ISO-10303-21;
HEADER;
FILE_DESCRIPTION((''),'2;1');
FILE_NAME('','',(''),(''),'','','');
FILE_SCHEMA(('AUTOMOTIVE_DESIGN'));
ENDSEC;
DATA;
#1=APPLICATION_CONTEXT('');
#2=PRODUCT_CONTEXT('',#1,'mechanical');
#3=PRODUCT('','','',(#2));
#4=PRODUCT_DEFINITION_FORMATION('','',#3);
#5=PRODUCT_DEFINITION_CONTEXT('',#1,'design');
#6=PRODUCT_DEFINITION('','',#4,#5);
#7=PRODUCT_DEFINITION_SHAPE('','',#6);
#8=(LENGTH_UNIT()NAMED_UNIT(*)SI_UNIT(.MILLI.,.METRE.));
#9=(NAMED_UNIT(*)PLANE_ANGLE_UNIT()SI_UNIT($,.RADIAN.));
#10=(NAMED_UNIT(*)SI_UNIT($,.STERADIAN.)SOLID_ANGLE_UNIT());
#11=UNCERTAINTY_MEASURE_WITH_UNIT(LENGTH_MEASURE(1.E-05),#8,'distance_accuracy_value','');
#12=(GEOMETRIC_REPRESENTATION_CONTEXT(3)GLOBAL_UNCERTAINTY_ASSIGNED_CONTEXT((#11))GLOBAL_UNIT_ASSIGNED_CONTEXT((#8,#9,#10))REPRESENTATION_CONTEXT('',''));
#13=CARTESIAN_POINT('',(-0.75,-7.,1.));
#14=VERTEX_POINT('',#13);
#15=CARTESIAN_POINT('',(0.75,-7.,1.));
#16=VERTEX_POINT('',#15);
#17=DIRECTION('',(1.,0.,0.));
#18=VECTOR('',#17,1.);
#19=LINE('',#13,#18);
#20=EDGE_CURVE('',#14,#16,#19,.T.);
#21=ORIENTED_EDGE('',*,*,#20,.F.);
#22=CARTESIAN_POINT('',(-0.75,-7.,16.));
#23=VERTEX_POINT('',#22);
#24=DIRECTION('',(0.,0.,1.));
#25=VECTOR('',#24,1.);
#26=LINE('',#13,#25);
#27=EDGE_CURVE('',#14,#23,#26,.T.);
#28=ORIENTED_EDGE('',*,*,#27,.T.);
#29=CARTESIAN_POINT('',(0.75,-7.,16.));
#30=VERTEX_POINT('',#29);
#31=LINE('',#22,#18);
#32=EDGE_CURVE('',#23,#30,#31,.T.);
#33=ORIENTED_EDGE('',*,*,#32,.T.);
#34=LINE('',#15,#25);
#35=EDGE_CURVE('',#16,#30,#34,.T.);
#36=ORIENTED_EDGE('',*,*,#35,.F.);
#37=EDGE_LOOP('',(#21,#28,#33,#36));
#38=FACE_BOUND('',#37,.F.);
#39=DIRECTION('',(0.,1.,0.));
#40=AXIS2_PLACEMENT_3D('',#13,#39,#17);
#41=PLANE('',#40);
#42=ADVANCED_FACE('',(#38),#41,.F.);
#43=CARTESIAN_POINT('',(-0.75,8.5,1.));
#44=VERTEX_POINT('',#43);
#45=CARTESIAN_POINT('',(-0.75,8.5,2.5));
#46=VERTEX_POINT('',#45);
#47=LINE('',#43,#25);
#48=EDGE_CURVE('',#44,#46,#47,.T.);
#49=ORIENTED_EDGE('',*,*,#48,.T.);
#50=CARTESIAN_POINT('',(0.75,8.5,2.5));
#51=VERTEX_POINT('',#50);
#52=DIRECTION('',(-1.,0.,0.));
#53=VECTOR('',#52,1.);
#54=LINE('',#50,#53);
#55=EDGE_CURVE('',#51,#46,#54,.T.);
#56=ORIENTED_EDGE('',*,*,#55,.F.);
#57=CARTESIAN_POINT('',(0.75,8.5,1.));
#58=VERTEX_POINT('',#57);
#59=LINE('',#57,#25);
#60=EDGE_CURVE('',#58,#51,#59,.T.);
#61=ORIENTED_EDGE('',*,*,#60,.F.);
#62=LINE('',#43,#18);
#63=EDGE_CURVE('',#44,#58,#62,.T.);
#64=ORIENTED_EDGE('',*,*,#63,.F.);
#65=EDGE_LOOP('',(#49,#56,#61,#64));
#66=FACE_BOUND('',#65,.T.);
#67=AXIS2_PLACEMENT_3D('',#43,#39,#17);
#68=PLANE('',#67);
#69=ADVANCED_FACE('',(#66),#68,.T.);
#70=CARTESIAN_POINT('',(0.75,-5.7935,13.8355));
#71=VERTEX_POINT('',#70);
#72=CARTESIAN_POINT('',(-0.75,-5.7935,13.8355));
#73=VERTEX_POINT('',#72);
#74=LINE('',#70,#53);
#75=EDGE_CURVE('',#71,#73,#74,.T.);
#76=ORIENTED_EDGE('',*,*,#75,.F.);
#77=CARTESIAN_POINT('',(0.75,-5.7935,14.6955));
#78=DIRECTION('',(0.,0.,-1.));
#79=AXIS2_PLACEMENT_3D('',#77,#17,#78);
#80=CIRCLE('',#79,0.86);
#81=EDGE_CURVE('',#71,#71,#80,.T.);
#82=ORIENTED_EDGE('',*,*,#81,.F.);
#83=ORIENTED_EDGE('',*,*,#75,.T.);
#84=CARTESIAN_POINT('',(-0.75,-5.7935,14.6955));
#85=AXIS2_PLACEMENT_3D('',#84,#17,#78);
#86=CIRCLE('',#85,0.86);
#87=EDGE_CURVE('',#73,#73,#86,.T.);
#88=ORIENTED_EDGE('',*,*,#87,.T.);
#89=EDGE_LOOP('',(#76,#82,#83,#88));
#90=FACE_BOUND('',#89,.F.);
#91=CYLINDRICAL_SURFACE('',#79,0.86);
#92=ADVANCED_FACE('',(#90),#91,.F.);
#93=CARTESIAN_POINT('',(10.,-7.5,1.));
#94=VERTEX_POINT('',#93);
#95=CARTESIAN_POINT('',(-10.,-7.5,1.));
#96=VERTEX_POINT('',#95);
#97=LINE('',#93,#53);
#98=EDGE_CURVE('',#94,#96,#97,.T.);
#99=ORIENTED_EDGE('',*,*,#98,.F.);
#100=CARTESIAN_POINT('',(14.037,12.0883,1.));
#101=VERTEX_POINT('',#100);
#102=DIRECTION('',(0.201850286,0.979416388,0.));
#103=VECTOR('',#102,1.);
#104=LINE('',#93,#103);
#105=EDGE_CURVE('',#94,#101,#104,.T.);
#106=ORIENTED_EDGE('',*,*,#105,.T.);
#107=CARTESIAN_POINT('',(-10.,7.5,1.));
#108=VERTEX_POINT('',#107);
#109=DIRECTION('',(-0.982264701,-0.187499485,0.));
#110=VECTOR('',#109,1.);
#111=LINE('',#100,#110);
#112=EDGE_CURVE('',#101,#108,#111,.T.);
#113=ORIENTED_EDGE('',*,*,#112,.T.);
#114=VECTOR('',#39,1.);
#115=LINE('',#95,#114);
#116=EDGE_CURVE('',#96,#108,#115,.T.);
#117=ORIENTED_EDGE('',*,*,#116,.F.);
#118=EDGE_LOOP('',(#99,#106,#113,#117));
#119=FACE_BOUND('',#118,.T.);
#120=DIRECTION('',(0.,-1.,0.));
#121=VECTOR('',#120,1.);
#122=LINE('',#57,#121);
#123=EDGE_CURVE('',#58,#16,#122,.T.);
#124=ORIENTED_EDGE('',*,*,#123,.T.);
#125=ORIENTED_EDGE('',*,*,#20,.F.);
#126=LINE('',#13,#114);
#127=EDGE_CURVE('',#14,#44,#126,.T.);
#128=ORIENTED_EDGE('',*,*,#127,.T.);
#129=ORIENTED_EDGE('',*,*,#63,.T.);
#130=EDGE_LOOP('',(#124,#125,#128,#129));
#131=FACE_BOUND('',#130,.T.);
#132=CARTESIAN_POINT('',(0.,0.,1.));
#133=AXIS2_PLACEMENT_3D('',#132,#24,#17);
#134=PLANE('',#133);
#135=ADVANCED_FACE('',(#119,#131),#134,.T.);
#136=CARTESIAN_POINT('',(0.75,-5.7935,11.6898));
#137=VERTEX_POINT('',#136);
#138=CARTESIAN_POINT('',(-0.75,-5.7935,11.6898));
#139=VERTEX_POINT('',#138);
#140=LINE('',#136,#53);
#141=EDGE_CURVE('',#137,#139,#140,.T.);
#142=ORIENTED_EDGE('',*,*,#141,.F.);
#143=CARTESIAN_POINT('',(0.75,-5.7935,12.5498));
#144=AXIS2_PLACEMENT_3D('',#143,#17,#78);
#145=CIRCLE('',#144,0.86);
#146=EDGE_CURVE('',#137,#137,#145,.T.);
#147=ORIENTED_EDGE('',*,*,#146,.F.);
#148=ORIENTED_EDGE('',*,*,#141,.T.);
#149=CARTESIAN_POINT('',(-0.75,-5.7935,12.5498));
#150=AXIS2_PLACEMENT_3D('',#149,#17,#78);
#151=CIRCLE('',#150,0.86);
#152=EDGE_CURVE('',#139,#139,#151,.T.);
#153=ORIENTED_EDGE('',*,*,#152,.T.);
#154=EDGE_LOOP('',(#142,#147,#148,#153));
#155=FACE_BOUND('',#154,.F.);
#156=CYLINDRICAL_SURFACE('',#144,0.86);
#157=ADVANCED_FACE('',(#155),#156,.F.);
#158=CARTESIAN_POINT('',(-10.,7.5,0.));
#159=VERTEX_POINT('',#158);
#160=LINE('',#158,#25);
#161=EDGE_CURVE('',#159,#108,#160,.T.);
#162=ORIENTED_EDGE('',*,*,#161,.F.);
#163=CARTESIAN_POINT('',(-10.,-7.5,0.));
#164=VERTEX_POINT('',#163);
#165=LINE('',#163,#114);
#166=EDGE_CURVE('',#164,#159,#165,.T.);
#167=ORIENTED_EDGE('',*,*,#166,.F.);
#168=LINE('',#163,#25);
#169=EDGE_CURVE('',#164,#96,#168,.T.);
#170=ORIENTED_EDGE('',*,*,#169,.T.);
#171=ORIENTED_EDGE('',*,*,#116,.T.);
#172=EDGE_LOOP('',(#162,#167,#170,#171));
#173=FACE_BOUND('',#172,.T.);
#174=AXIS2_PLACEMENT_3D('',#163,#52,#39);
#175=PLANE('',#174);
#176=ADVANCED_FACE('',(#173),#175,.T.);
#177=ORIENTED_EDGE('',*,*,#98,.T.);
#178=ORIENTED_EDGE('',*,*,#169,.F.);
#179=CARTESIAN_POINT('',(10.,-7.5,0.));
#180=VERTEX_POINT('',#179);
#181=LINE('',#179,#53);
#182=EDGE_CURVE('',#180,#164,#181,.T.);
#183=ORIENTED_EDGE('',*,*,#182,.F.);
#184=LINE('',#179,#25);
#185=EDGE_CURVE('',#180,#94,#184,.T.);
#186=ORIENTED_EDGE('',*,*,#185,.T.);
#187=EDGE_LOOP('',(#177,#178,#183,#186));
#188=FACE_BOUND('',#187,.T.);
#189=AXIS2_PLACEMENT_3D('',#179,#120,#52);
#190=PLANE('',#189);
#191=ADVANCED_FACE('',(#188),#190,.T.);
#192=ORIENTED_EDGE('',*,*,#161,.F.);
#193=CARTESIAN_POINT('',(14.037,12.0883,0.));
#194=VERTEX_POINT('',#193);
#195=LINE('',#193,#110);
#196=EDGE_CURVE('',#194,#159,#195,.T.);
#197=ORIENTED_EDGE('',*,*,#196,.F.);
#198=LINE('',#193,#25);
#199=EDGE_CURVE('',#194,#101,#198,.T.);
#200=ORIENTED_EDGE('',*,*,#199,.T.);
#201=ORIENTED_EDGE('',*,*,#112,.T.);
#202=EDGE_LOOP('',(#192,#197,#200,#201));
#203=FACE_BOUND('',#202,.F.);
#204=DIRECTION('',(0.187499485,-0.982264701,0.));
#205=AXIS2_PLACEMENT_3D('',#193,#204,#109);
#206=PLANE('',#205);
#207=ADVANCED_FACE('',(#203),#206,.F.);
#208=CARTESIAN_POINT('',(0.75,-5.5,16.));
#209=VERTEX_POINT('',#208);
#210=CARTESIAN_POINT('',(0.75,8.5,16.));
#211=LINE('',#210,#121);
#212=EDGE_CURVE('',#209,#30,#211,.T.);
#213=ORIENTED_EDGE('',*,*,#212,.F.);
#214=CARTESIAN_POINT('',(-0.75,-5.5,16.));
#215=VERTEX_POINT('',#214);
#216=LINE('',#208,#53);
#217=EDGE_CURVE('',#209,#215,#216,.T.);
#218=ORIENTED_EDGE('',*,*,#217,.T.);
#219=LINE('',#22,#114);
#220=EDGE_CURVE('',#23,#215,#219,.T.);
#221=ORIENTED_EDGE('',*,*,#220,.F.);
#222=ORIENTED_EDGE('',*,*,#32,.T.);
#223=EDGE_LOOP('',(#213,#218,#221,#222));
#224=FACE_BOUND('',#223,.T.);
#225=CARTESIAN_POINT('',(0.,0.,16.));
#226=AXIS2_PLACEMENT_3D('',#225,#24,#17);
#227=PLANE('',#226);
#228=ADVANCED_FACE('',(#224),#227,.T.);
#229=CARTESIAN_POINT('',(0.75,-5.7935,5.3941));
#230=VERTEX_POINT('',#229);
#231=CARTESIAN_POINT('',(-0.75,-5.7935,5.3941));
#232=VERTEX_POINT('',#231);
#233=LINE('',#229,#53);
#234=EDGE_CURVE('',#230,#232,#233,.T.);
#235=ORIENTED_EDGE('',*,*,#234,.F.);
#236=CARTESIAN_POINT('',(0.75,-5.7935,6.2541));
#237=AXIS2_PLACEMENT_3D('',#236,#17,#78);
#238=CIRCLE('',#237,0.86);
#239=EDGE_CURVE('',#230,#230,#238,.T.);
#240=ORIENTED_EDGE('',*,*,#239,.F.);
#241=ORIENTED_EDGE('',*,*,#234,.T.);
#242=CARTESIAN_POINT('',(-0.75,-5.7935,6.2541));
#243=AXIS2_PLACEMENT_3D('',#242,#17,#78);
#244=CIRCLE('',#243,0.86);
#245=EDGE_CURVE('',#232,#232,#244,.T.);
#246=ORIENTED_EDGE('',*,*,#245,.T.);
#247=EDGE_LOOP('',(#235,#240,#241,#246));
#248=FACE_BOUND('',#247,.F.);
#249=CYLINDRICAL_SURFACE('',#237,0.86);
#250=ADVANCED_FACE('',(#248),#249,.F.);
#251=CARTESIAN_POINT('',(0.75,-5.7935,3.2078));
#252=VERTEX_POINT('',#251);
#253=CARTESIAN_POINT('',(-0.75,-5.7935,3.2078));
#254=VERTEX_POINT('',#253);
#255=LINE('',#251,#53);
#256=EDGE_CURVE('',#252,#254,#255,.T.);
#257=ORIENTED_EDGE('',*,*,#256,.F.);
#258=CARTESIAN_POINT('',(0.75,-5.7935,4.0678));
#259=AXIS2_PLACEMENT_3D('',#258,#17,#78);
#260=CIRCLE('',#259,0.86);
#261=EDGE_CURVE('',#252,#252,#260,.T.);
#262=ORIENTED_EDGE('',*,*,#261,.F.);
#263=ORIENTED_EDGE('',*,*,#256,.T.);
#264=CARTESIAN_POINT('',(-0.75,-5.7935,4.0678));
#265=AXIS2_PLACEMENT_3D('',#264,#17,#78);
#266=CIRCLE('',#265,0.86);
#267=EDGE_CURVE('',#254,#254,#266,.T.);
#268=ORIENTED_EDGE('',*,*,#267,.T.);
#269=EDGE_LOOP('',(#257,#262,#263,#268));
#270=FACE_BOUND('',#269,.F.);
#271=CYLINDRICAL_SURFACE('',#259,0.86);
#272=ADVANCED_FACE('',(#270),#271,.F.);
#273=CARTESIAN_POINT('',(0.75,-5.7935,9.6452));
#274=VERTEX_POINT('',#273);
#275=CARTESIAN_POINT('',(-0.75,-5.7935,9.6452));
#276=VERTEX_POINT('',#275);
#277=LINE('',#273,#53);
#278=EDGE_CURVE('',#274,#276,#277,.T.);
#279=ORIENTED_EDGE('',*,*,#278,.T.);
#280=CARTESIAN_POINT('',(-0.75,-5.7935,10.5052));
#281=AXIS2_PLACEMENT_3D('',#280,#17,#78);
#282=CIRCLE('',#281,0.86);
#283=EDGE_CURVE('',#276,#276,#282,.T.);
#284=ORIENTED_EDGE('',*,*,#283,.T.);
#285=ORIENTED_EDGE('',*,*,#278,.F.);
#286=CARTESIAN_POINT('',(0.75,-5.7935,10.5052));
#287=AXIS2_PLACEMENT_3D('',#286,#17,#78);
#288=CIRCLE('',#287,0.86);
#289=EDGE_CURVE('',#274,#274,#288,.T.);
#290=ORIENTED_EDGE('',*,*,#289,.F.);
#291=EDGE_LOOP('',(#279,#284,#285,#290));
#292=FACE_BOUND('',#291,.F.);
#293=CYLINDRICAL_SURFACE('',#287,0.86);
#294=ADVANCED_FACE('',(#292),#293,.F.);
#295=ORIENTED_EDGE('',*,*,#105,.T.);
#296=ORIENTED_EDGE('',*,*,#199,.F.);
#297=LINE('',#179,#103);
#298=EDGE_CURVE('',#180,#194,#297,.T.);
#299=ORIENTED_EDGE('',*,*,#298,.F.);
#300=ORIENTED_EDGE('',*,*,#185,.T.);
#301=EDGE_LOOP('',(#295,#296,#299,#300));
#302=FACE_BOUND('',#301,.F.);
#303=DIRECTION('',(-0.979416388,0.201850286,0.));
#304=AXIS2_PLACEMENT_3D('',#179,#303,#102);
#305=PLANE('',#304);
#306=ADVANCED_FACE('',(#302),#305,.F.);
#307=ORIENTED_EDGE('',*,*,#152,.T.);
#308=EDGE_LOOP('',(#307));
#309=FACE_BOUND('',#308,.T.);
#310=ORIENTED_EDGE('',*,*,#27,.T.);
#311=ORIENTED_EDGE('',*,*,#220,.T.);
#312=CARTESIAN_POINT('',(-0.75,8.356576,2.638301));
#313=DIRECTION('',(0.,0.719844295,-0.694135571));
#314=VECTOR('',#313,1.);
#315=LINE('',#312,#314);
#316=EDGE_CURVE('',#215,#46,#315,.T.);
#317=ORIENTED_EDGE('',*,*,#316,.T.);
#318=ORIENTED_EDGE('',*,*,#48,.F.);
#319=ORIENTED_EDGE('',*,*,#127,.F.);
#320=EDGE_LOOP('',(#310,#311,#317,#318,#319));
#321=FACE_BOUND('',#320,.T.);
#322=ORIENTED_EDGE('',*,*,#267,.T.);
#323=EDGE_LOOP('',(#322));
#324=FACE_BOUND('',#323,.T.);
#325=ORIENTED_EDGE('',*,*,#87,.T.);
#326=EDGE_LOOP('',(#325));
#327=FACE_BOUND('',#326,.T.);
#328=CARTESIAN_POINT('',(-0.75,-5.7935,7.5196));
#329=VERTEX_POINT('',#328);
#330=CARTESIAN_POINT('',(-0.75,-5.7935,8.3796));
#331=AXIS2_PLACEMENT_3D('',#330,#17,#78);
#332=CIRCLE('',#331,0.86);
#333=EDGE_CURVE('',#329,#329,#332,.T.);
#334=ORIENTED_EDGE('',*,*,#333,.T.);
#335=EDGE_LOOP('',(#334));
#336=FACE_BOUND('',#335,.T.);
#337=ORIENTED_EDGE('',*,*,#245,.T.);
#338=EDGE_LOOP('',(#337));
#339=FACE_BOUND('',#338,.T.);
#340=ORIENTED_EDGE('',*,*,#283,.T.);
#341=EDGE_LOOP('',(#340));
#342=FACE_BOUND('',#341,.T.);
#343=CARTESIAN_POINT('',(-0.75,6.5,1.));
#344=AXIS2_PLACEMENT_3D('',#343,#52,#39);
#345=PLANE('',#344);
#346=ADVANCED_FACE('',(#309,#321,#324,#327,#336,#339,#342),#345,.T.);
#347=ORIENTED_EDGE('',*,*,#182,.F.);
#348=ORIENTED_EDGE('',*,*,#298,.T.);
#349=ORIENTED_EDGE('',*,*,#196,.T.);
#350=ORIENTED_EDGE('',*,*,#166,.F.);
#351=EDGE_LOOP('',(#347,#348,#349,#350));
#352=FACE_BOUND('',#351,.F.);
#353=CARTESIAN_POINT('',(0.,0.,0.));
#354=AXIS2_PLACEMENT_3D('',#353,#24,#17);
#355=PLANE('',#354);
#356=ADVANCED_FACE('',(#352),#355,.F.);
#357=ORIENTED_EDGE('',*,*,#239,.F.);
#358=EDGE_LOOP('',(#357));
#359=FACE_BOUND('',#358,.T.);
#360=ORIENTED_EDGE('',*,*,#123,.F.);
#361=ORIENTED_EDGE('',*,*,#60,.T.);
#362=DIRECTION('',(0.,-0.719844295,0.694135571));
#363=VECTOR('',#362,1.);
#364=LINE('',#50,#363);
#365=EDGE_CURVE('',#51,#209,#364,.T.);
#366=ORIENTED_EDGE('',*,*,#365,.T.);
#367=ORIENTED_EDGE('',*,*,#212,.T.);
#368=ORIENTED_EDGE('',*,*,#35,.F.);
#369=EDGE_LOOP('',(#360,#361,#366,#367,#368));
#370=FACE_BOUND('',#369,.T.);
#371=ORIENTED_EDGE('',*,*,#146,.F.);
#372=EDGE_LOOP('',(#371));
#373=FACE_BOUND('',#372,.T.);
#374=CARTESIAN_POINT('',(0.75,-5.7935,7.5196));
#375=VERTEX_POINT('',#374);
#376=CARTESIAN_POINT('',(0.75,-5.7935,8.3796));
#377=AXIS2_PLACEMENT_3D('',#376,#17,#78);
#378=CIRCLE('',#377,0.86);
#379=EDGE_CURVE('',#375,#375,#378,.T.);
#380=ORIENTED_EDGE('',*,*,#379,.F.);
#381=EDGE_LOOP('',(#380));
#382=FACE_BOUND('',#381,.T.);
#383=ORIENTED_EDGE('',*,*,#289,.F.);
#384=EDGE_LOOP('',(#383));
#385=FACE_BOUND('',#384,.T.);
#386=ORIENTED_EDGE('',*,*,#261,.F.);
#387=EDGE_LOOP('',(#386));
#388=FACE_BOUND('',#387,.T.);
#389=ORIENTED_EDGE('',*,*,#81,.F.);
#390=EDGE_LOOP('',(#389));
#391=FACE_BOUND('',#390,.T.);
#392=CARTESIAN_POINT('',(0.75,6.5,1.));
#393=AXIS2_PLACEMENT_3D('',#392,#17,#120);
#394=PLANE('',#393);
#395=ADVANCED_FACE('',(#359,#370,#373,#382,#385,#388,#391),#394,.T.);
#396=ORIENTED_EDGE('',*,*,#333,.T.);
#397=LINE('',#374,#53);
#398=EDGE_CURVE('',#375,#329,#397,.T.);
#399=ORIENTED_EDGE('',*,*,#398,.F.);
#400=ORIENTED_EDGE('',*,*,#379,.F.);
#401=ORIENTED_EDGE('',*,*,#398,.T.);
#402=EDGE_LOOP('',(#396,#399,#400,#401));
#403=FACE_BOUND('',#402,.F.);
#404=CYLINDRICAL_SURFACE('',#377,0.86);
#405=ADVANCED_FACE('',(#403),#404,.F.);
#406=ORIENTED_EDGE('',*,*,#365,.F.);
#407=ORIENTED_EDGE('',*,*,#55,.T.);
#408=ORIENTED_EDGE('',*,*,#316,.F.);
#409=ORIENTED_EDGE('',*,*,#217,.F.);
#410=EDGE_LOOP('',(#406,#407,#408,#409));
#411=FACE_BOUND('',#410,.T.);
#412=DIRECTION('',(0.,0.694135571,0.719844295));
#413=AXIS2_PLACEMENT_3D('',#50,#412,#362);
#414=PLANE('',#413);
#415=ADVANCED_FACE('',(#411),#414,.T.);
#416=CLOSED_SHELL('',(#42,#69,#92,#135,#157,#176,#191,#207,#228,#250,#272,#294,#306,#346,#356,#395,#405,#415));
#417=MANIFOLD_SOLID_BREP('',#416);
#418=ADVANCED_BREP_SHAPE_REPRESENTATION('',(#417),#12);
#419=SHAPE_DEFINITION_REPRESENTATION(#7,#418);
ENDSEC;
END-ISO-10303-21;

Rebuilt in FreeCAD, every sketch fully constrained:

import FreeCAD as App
import Part
import Sketcher
from FreeCAD import Vector
Q = App.Units.Quantity


def add_polygon(sketch, points):
    """Adds a closed chain of lines whose ends are joined by coincident constraints."""
    first, n = sketch.GeometryCount, len(points)
    for a, b in zip(points, points[1:] + points[:1]):
        sketch.addGeometry(Part.LineSegment(App.Vector(*a, 0), App.Vector(*b, 0)), False)
    for i in range(n):
        sketch.addConstraint(Sketcher.Constraint("Coincident", first + i, 2, first + (i + 1) % n, 1))

doc = App.newDocument("Part")
body = doc.addObject("PartDesign::Body", "Body")

# Sketch on XY plane
sketch1 = doc.addObject("Sketcher::SketchObject", "Sketch")
body.addObject(sketch1)
sketch1.AttachmentSupport = (doc.XY_Plane, [""])
sketch1.MapMode = "FlatFace"
add_polygon(sketch1, [(-10, -8), (10, -8), (14, 12), (-10, 8)])  # lines 0-3
sketch1.addConstraint([
    Sketcher.Constraint("Horizontal", 0),
    Sketcher.Constraint("Vertical", 3),
    Sketcher.Constraint("Symmetric", 0, 2, 2, 2, -1, 1),
    Sketcher.Constraint("DistanceX", 0, 1, 0, 2, Q("20 mm")),
    Sketcher.Constraint("DistanceY", 3, 2, 3, 1, Q("15 mm")),
    Sketcher.Constraint("Distance", 1, Q("20 mm")),
    Sketcher.Constraint("Distance", 2, Q("24.471 mm")),
])
pad1 = doc.addObject("PartDesign::Pad", "Pad")
body.addObject(pad1)
pad1.Profile = sketch1
pad1.Length = 1

# Sketch on XY plane
sketch2 = doc.addObject("Sketcher::SketchObject", "Sketch001")
body.addObject(sketch2)
sketch2.AttachmentSupport = (doc.XY_Plane, [""])
sketch2.MapMode = "FlatFace"
sketch2.AttachmentOffset = App.Placement(Vector(0, 0, 1), App.Rotation())
add_polygon(sketch2, [(0.8, -7), (0.8, 8.5), (-0.8, 8.5), (-0.8, -7)])  # lines 0-3
sketch2.addConstraint([
    Sketcher.Constraint("Vertical", 0),
    Sketcher.Constraint("Horizontal", 1),
    Sketcher.Constraint("Vertical", 2),
    Sketcher.Constraint("Horizontal", 3),
    Sketcher.Constraint("DistanceX", 1, 2, 1, 1, Q("1.5 mm")),
    Sketcher.Constraint("DistanceY", 0, 1, 0, 2, Q("15.5 mm")),
    Sketcher.Constraint("DistanceY", 2, 2, -1, 1, Q("7 mm")),
    Sketcher.Constraint("DistanceX", -1, 1, 0, 2, Q("0.75 mm")),
])
pad2 = doc.addObject("PartDesign::Pad", "Pad001")
body.addObject(pad2)
pad2.Profile = sketch2
pad2.Length = 15

# Sketch on YZ plane
sketch3 = doc.addObject("Sketcher::SketchObject", "Sketch002")
body.addObject(sketch3)
sketch3.AttachmentSupport = (doc.YZ_Plane, [""])
sketch3.MapMode = "FlatFace"
sketch3.AttachmentOffset = App.Placement(Vector(0, 0, 0.75), App.Rotation())
add_polygon(sketch3, [(-6, 16), (8, 2), (8, 16)])  # lines 0-2
sketch3.addConstraint([
    Sketcher.Constraint("Vertical", 1),
    Sketcher.Constraint("Horizontal", 2),
    Sketcher.Constraint("DistanceX", 2, 2, 2, 1, Q("14 mm")),
    Sketcher.Constraint("DistanceY", 1, 1, 1, 2, Q("13.5 mm")),
    Sketcher.Constraint("DistanceY", -1, 1, 1, 2, Q("16 mm")),
    Sketcher.Constraint("DistanceX", -1, 1, 0, 2, Q("8.5 mm")),
])
pocket1 = doc.addObject("PartDesign::Pocket", "Pocket")
body.addObject(pocket1)
pocket1.Profile = sketch3
pocket1.Type = "ThroughAll"

# Sketch on YZ plane
sketch4 = doc.addObject("Sketcher::SketchObject", "Sketch003")
body.addObject(sketch4)
sketch4.AttachmentSupport = (doc.YZ_Plane, [""])
sketch4.MapMode = "FlatFace"
sketch4.AttachmentOffset = App.Placement(Vector(0, 0, 0.75), App.Rotation())
sketch4.addGeometry([
    Part.Circle(Vector(-5.8, 14.7, 0), Vector(0, 0, 1), 0.9),  # 0
    Part.Circle(Vector(-5.8, 12.5, 0), Vector(0, 0, 1), 0.9),  # 1
    Part.Circle(Vector(-5.8, 10.5, 0), Vector(0, 0, 1), 0.9),  # 2
    Part.Circle(Vector(-5.8, 8.4, 0), Vector(0, 0, 1), 0.9),  # 3
    Part.Circle(Vector(-5.8, 6.3, 0), Vector(0, 0, 1), 0.9),  # 4
    Part.Circle(Vector(-5.8, 4.1, 0), Vector(0, 0, 1), 0.9),  # 5
], False)
sketch4.addConstraint([
    Sketcher.Constraint("Equal", 0, 1),
    Sketcher.Constraint("Equal", 1, 2),
    Sketcher.Constraint("Equal", 2, 3),
    Sketcher.Constraint("Equal", 3, 4),
    Sketcher.Constraint("Equal", 4, 5),
    Sketcher.Constraint("Vertical", 0, 3, 1, 3),
    Sketcher.Constraint("Vertical", 1, 3, 2, 3),
    Sketcher.Constraint("Vertical", 2, 3, 3, 3),
    Sketcher.Constraint("Vertical", 3, 3, 4, 3),
    Sketcher.Constraint("Vertical", 4, 3, 5, 3),
    Sketcher.Constraint("Diameter", 0, Q("1.72 mm")),
    Sketcher.Constraint("DistanceY", -1, 1, 4, 3, Q("6.254 mm")),
    Sketcher.Constraint("DistanceY", 3, 3, 0, 3, Q("6.316 mm")),
    Sketcher.Constraint("DistanceY", 4, 3, 2, 3, Q("4.251 mm")),
    Sketcher.Constraint("DistanceY", 5, 3, 1, 3, Q("8.482 mm")),
    Sketcher.Constraint("DistanceX", 0, 3, -1, 1, Q("5.7935 mm")),
    Sketcher.Constraint("DistanceY", -1, 1, 0, 3, Q("14.6955 mm")),
    Sketcher.Constraint("DistanceY", -1, 1, 1, 3, Q("12.5498 mm")),
])
pocket2 = doc.addObject("PartDesign::Pocket", "Pocket001")
body.addObject(pocket2)
pocket2.Profile = sketch4
pocket2.Type = "ThroughAll"

doc.recompute()
